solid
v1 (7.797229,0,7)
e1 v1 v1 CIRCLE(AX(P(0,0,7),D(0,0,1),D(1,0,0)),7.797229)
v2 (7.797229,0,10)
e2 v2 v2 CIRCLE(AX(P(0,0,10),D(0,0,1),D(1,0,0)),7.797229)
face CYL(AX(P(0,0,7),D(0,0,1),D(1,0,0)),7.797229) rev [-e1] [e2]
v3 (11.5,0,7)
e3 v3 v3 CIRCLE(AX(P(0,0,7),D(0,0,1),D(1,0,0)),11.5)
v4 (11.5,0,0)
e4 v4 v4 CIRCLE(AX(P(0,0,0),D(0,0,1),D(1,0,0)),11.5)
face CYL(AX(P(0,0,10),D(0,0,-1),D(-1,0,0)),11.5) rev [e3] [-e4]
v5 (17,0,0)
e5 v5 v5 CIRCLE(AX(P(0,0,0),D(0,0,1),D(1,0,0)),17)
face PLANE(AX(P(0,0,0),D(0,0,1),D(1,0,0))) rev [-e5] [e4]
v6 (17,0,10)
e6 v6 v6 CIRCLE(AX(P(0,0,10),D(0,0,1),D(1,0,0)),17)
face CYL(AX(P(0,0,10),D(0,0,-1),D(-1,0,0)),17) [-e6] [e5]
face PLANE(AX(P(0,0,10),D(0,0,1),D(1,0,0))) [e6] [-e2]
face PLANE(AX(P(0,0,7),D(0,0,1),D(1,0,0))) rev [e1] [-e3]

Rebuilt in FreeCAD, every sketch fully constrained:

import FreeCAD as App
import Part
import Sketcher
from FreeCAD import Vector

doc = App.newDocument("Part")
body = doc.addObject("PartDesign::Body", "Body")

# Sketch on XY plane
sketch1 = body.newObject("Sketcher::SketchObject", "Sketch")
sketch1.AttachmentSupport = (doc.getObject("XY_Plane"), [""])
sketch1.MapMode = "FlatFace"
sketch1.addGeometry([
    Part.Circle(Vector(0, 0, 0), Vector(0, 0, 1), 17),
    Part.Circle(Vector(0, 0, 0), Vector(0, 0, 1), 12),
], False)
sketch1.addConstraint([
    Sketcher.Constraint("Coincident", 0, 3, -1, 1),
    Sketcher.Constraint("Coincident", 1, 3, -1, 1),
    Sketcher.Constraint("Diameter", 0, 34.0),
    Sketcher.Constraint("Diameter", 1, 23.0),
])
pad1 = body.newObject("PartDesign::Pad", "Pad")
pad1.Profile = sketch1
pad1.Length = 10

# Sketch on XY plane
sketch2 = body.newObject("Sketcher::SketchObject", "Sketch001")
sketch2.AttachmentSupport = (doc.getObject("XY_Plane"), [""])
sketch2.MapMode = "FlatFace"
sketch2.AttachmentOffset = App.Placement(Vector(0, 0, 7), App.Rotation())
sketch2.addGeometry([
    Part.Circle(Vector(0, 0, 0), Vector(0, 0, 1), 12),
    Part.Circle(Vector(0, 0, 0), Vector(0, 0, 1), 8),
], False)
sketch2.addConstraint([
    Sketcher.Constraint("Coincident", 0, 3, -1, 1),
    Sketcher.Constraint("Coincident", 1, 3, -1, 1),
    Sketcher.Constraint("Diameter", 0, 23.0),
    Sketcher.Constraint("Diameter", 1, 15.594458),
])
pad2 = body.newObject("PartDesign::Pad", "Pad001")
pad2.Profile = sketch2
pad2.Length = 3

doc.recompute()
